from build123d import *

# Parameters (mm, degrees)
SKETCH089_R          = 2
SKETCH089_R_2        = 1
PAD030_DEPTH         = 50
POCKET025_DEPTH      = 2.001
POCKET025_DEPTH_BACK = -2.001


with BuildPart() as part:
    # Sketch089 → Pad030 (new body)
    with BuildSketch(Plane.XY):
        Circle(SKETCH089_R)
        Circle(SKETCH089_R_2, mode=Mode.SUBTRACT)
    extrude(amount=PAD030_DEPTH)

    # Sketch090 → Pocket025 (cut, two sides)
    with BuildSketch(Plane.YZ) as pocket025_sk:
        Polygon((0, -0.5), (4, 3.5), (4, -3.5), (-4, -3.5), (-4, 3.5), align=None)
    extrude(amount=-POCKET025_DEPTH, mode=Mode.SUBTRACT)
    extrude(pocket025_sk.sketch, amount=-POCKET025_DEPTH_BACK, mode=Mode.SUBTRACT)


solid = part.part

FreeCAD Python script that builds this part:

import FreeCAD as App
import Part
import Sketcher
from FreeCAD import Vector
Q = App.Units.Quantity

doc = App.newDocument("Part")
body = doc.addObject("PartDesign::Body", "Body")

sketch1 = doc.addObject("Sketcher::SketchObject", "Sketch")
body.addObject(sketch1)
sketch1.AttachmentSupport = (doc.XY_Plane, [""])
sketch1.MapMode = "FlatFace"
sketch1.addGeometry(Part.Circle(Vector(0, 0, 0), Vector(0, 0, 1), 2), False)
sketch1.addGeometry(Part.Circle(Vector(0, 0, 0), Vector(0, 0, 1), 1), False)
sketch1.addConstraint(Sketcher.Constraint("Coincident", 0, 3, -1, 1))
sketch1.addConstraint(Sketcher.Constraint("Coincident", 1, 3, -1, 1))
sketch1.addConstraint(Sketcher.Constraint("Diameter", 0, Q("4 mm")))
sketch1.addConstraint(Sketcher.Constraint("Diameter", 1, Q("2 mm")))
pad1 = doc.addObject("PartDesign::Pad", "Pad")
body.addObject(pad1)
pad1.Profile = sketch1
pad1.Length = 50

sketch2 = doc.addObject("Sketcher::SketchObject", "Sketch001")
body.addObject(sketch2)
sketch2.AttachmentSupport = (doc.YZ_Plane, [""])
sketch2.MapMode = "FlatFace"
sketch2.addGeometry(Part.LineSegment(Vector(4, 4, 0), Vector(0, 0, 0)), False)
sketch2.addGeometry(Part.LineSegment(Vector(0, 0, 0), Vector(-4, 4, 0)), False)
sketch2.addGeometry(Part.LineSegment(Vector(-4, 4, 0), Vector(-4, -4, 0)), False)
sketch2.addGeometry(Part.LineSegment(Vector(-4, -4, 0), Vector(4, -4, 0)), False)
sketch2.addGeometry(Part.LineSegment(Vector(4, -4, 0), Vector(4, 4, 0)), False)
sketch2.addConstraint(Sketcher.Constraint("Coincident", 0, 2, 1, 1))
sketch2.addConstraint(Sketcher.Constraint("Coincident", 1, 2, 2, 1))
sketch2.addConstraint(Sketcher.Constraint("Coincident", 2, 2, 3, 1))
sketch2.addConstraint(Sketcher.Constraint("Coincident", 3, 2, 4, 1))
sketch2.addConstraint(Sketcher.Constraint("Coincident", 4, 2, 0, 1))
sketch2.addConstraint(Sketcher.Constraint("Vertical", 2))
sketch2.addConstraint(Sketcher.Constraint("Horizontal", 3))
sketch2.addConstraint(Sketcher.Constraint("Vertical", 4))
sketch2.addConstraint(Sketcher.Constraint("Symmetric", 1, 2, 3, 2, -1, 1))
sketch2.addConstraint(Sketcher.Constraint("PointOnObject", 0, 2, -2))
sketch2.addConstraint(Sketcher.Constraint("Perpendicular", 0, 1))
sketch2.addConstraint(Sketcher.Constraint("Horizontal", 1, 2, 4, 2))
sketch2.addConstraint(Sketcher.Constraint("DistanceX", 3, 1, 3, 2, Q("8 mm")))
sketch2.addConstraint(Sketcher.Constraint("DistanceY", 2, 2, 2, 1, Q("7 mm")))
pocket1 = doc.addObject("PartDesign::Pocket", "Pocket")
body.addObject(pocket1)
pocket1.Profile = sketch2
pocket1.Type = "ThroughAll"
pocket1.Midplane = True

doc.recompute()
